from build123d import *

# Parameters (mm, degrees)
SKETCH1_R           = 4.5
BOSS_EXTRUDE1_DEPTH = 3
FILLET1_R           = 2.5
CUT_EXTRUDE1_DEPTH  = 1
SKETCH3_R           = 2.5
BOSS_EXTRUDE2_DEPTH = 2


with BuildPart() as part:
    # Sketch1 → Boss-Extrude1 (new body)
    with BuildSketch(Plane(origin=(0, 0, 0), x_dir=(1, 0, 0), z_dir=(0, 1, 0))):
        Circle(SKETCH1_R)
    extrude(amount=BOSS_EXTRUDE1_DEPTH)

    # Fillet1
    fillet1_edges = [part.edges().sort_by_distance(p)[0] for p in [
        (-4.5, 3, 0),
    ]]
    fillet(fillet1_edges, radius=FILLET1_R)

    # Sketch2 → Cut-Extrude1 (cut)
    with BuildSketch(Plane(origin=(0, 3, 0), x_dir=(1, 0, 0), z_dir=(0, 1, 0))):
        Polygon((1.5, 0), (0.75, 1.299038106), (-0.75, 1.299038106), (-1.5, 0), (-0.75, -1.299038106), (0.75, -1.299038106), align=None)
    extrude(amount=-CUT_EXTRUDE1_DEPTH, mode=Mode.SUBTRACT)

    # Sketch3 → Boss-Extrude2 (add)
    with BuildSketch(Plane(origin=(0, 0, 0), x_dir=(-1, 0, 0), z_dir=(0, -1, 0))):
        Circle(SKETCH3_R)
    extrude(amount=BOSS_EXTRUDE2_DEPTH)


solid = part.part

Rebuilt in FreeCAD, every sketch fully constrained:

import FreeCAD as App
import Part
import Sketcher
from FreeCAD import Vector
Q = App.Units.Quantity


def edges_at(feature, points):
    """Names of the edges that pass closest to the given points."""
    edges = feature.Shape.Edges
    near = lambda p: min(range(len(edges)), key=lambda i: edges[i].distToShape(Part.Vertex(*p))[0])
    return sorted({f"Edge{near(p) + 1}" for p in points})


def add_polygon(sketch, points):
    """Adds a closed chain of lines whose ends are joined by coincident constraints."""
    first, n = sketch.GeometryCount, len(points)
    for a, b in zip(points, points[1:] + points[:1]):
        sketch.addGeometry(Part.LineSegment(App.Vector(*a, 0), App.Vector(*b, 0)), False)
    for i in range(n):
        sketch.addConstraint(Sketcher.Constraint("Coincident", first + i, 2, first + (i + 1) % n, 1))

doc = App.newDocument("Part")
params = doc.addObject("Spreadsheet::Sheet", "Params")
for row, (alias, value) in enumerate([
    ("sketch1_diameter", "9 mm"),
    ("pad1_length", "3 mm"),
    ("fillet_radius", "2.5 mm"),
    ("sketch2_width", "1.5 mm"),
    ("pocket1_length", "1 mm"),
    ("sketch3_diameter", "5 mm"),
    ("pad2_length", "2 mm"),
], start=1):
    params.set(f"A{row}", alias)
    params.set(f"B{row}", "=" + value)
    params.setAlias(f"B{row}", alias)

body = doc.addObject("PartDesign::Body", "Body")

sketch1 = body.newObject("Sketcher::SketchObject", "Sketch")
sketch1.AttachmentSupport = (doc.getObject("XZ_Plane"), [""])
sketch1.MapMode = "FlatFace"
sketch1.addGeometry(Part.Circle(Vector(0, 0, 0), Vector(0, 0, 1), 4.5), False)
sketch1.addConstraint([
    Sketcher.Constraint("Coincident", 0, 3, -1, 1),
    Sketcher.Constraint("Diameter", 0, Q("9 mm")),
])
sketch1.setExpression("Constraints[1]", "Params.sketch1_diameter")
pad1 = body.newObject("PartDesign::Pad", "Pad")
pad1.Profile = sketch1
pad1.setExpression("Length", "Params.pad1_length")
pad1.Reversed = True
doc.recompute()

fillet = body.newObject("PartDesign::Fillet", "Fillet")
fillet.Base = (pad1, edges_at(pad1, [(-4.5, 3, 0)]))
fillet.setExpression("Radius", "Params.fillet_radius")

sketch2 = body.newObject("Sketcher::SketchObject", "Sketch001")
sketch2.AttachmentSupport = (doc.getObject("XZ_Plane"), [""])
sketch2.MapMode = "FlatFace"
sketch2.AttachmentOffset = App.Placement(Vector(0, 0, -3), App.Rotation())
add_polygon(sketch2, [(1.5, 0), (0.8, -1.3), (-0.8, -1.3), (-1.5, 0), (-0.8, 1.3), (0.8, 1.3)])
sketch2.addConstraint([
    Sketcher.Constraint("Horizontal", 1),
    Sketcher.Constraint("Horizontal", 4),
    Sketcher.Constraint("Symmetric", 0, 2, 3, 2, -1, 1),
    Sketcher.Constraint("Symmetric", 2, 2, 5, 2, -1, 1),
    Sketcher.Constraint("PointOnObject", 2, 2, -1),
    Sketcher.Constraint("Parallel", 2, 5),
    Sketcher.Constraint("Vertical", 1, 2, 3, 2),
    Sketcher.Constraint("Angle", 0, Q("-120 deg")),
    Sketcher.Constraint("DistanceX", 1, 2, 1, 1, Q("1.5 mm")),
    Sketcher.Constraint("DistanceX", 2, 2, 5, 2, Q("3 mm")),
])
sketch2.setExpression("Constraints[14]", "Params.sketch2_width")
pocket1 = body.newObject("PartDesign::Pocket", "Pocket")
pocket1.Profile = sketch2
pocket1.setExpression("Length", "Params.pocket1_length")
pocket1.Reversed = True

sketch3 = body.newObject("Sketcher::SketchObject", "Sketch002")
sketch3.AttachmentSupport = (doc.getObject("XZ_Plane"), [""])
sketch3.MapMode = "FlatFace"
sketch3.addGeometry(Part.Circle(Vector(0, 0, 0), Vector(0, 0, 1), 2.5), False)
sketch3.addConstraint([
    Sketcher.Constraint("Coincident", 0, 3, -1, 1),
    Sketcher.Constraint("Diameter", 0, Q("5 mm")),
])
sketch3.setExpression("Constraints[1]", "Params.sketch3_diameter")
pad2 = body.newObject("PartDesign::Pad", "Pad001")
pad2.Profile = sketch3
pad2.setExpression("Length", "Params.pad2_length")

doc.recompute()
